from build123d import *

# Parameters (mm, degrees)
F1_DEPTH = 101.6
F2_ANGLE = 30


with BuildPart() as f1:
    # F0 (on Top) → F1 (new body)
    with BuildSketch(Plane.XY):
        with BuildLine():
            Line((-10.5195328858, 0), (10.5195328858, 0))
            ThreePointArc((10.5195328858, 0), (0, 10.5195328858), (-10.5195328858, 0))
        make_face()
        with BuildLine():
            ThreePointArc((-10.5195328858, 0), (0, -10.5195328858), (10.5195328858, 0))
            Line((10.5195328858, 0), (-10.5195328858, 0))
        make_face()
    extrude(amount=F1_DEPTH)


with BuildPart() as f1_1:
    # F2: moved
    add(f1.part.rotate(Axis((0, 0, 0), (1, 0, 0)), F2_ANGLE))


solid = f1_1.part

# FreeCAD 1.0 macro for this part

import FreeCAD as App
import Part
import Sketcher
from FreeCAD import Vector
Q = App.Units.Quantity

doc = App.newDocument("Part")
body = doc.addObject("PartDesign::Body", "Body")

sketch1 = doc.addObject("Sketcher::SketchObject", "Sketch")
body.addObject(sketch1)
sketch1.AttachmentSupport = (doc.XY_Plane, [""])
sketch1.MapMode = "FlatFace"
sketch1.addGeometry(Part.Circle(Vector(0, 0, 0), Vector(0, 0, 1), 11), False)
sketch1.addConstraint([
    Sketcher.Constraint("Coincident", 0, 3, -1, 1),
    Sketcher.Constraint("Diameter", 0, Q("21.039066 mm")),
])
pad1 = doc.addObject("PartDesign::Pad", "Pad")
body.addObject(pad1)
pad1.Profile = sketch1
pad1.Length = Q("4 in")
body2 = doc.addObject("PartDesign::Body", "Body001")
doc.recompute()

body.Placement = App.Placement(Vector(0, 0, 0), App.Rotation(Vector(1, 0, 0), 30))
boolean = doc.addObject("PartDesign::Boolean", "Boolean")
body2.addObject(boolean)
boolean.Type = "Fuse"
boolean.addObjects([body])

doc.recompute()
